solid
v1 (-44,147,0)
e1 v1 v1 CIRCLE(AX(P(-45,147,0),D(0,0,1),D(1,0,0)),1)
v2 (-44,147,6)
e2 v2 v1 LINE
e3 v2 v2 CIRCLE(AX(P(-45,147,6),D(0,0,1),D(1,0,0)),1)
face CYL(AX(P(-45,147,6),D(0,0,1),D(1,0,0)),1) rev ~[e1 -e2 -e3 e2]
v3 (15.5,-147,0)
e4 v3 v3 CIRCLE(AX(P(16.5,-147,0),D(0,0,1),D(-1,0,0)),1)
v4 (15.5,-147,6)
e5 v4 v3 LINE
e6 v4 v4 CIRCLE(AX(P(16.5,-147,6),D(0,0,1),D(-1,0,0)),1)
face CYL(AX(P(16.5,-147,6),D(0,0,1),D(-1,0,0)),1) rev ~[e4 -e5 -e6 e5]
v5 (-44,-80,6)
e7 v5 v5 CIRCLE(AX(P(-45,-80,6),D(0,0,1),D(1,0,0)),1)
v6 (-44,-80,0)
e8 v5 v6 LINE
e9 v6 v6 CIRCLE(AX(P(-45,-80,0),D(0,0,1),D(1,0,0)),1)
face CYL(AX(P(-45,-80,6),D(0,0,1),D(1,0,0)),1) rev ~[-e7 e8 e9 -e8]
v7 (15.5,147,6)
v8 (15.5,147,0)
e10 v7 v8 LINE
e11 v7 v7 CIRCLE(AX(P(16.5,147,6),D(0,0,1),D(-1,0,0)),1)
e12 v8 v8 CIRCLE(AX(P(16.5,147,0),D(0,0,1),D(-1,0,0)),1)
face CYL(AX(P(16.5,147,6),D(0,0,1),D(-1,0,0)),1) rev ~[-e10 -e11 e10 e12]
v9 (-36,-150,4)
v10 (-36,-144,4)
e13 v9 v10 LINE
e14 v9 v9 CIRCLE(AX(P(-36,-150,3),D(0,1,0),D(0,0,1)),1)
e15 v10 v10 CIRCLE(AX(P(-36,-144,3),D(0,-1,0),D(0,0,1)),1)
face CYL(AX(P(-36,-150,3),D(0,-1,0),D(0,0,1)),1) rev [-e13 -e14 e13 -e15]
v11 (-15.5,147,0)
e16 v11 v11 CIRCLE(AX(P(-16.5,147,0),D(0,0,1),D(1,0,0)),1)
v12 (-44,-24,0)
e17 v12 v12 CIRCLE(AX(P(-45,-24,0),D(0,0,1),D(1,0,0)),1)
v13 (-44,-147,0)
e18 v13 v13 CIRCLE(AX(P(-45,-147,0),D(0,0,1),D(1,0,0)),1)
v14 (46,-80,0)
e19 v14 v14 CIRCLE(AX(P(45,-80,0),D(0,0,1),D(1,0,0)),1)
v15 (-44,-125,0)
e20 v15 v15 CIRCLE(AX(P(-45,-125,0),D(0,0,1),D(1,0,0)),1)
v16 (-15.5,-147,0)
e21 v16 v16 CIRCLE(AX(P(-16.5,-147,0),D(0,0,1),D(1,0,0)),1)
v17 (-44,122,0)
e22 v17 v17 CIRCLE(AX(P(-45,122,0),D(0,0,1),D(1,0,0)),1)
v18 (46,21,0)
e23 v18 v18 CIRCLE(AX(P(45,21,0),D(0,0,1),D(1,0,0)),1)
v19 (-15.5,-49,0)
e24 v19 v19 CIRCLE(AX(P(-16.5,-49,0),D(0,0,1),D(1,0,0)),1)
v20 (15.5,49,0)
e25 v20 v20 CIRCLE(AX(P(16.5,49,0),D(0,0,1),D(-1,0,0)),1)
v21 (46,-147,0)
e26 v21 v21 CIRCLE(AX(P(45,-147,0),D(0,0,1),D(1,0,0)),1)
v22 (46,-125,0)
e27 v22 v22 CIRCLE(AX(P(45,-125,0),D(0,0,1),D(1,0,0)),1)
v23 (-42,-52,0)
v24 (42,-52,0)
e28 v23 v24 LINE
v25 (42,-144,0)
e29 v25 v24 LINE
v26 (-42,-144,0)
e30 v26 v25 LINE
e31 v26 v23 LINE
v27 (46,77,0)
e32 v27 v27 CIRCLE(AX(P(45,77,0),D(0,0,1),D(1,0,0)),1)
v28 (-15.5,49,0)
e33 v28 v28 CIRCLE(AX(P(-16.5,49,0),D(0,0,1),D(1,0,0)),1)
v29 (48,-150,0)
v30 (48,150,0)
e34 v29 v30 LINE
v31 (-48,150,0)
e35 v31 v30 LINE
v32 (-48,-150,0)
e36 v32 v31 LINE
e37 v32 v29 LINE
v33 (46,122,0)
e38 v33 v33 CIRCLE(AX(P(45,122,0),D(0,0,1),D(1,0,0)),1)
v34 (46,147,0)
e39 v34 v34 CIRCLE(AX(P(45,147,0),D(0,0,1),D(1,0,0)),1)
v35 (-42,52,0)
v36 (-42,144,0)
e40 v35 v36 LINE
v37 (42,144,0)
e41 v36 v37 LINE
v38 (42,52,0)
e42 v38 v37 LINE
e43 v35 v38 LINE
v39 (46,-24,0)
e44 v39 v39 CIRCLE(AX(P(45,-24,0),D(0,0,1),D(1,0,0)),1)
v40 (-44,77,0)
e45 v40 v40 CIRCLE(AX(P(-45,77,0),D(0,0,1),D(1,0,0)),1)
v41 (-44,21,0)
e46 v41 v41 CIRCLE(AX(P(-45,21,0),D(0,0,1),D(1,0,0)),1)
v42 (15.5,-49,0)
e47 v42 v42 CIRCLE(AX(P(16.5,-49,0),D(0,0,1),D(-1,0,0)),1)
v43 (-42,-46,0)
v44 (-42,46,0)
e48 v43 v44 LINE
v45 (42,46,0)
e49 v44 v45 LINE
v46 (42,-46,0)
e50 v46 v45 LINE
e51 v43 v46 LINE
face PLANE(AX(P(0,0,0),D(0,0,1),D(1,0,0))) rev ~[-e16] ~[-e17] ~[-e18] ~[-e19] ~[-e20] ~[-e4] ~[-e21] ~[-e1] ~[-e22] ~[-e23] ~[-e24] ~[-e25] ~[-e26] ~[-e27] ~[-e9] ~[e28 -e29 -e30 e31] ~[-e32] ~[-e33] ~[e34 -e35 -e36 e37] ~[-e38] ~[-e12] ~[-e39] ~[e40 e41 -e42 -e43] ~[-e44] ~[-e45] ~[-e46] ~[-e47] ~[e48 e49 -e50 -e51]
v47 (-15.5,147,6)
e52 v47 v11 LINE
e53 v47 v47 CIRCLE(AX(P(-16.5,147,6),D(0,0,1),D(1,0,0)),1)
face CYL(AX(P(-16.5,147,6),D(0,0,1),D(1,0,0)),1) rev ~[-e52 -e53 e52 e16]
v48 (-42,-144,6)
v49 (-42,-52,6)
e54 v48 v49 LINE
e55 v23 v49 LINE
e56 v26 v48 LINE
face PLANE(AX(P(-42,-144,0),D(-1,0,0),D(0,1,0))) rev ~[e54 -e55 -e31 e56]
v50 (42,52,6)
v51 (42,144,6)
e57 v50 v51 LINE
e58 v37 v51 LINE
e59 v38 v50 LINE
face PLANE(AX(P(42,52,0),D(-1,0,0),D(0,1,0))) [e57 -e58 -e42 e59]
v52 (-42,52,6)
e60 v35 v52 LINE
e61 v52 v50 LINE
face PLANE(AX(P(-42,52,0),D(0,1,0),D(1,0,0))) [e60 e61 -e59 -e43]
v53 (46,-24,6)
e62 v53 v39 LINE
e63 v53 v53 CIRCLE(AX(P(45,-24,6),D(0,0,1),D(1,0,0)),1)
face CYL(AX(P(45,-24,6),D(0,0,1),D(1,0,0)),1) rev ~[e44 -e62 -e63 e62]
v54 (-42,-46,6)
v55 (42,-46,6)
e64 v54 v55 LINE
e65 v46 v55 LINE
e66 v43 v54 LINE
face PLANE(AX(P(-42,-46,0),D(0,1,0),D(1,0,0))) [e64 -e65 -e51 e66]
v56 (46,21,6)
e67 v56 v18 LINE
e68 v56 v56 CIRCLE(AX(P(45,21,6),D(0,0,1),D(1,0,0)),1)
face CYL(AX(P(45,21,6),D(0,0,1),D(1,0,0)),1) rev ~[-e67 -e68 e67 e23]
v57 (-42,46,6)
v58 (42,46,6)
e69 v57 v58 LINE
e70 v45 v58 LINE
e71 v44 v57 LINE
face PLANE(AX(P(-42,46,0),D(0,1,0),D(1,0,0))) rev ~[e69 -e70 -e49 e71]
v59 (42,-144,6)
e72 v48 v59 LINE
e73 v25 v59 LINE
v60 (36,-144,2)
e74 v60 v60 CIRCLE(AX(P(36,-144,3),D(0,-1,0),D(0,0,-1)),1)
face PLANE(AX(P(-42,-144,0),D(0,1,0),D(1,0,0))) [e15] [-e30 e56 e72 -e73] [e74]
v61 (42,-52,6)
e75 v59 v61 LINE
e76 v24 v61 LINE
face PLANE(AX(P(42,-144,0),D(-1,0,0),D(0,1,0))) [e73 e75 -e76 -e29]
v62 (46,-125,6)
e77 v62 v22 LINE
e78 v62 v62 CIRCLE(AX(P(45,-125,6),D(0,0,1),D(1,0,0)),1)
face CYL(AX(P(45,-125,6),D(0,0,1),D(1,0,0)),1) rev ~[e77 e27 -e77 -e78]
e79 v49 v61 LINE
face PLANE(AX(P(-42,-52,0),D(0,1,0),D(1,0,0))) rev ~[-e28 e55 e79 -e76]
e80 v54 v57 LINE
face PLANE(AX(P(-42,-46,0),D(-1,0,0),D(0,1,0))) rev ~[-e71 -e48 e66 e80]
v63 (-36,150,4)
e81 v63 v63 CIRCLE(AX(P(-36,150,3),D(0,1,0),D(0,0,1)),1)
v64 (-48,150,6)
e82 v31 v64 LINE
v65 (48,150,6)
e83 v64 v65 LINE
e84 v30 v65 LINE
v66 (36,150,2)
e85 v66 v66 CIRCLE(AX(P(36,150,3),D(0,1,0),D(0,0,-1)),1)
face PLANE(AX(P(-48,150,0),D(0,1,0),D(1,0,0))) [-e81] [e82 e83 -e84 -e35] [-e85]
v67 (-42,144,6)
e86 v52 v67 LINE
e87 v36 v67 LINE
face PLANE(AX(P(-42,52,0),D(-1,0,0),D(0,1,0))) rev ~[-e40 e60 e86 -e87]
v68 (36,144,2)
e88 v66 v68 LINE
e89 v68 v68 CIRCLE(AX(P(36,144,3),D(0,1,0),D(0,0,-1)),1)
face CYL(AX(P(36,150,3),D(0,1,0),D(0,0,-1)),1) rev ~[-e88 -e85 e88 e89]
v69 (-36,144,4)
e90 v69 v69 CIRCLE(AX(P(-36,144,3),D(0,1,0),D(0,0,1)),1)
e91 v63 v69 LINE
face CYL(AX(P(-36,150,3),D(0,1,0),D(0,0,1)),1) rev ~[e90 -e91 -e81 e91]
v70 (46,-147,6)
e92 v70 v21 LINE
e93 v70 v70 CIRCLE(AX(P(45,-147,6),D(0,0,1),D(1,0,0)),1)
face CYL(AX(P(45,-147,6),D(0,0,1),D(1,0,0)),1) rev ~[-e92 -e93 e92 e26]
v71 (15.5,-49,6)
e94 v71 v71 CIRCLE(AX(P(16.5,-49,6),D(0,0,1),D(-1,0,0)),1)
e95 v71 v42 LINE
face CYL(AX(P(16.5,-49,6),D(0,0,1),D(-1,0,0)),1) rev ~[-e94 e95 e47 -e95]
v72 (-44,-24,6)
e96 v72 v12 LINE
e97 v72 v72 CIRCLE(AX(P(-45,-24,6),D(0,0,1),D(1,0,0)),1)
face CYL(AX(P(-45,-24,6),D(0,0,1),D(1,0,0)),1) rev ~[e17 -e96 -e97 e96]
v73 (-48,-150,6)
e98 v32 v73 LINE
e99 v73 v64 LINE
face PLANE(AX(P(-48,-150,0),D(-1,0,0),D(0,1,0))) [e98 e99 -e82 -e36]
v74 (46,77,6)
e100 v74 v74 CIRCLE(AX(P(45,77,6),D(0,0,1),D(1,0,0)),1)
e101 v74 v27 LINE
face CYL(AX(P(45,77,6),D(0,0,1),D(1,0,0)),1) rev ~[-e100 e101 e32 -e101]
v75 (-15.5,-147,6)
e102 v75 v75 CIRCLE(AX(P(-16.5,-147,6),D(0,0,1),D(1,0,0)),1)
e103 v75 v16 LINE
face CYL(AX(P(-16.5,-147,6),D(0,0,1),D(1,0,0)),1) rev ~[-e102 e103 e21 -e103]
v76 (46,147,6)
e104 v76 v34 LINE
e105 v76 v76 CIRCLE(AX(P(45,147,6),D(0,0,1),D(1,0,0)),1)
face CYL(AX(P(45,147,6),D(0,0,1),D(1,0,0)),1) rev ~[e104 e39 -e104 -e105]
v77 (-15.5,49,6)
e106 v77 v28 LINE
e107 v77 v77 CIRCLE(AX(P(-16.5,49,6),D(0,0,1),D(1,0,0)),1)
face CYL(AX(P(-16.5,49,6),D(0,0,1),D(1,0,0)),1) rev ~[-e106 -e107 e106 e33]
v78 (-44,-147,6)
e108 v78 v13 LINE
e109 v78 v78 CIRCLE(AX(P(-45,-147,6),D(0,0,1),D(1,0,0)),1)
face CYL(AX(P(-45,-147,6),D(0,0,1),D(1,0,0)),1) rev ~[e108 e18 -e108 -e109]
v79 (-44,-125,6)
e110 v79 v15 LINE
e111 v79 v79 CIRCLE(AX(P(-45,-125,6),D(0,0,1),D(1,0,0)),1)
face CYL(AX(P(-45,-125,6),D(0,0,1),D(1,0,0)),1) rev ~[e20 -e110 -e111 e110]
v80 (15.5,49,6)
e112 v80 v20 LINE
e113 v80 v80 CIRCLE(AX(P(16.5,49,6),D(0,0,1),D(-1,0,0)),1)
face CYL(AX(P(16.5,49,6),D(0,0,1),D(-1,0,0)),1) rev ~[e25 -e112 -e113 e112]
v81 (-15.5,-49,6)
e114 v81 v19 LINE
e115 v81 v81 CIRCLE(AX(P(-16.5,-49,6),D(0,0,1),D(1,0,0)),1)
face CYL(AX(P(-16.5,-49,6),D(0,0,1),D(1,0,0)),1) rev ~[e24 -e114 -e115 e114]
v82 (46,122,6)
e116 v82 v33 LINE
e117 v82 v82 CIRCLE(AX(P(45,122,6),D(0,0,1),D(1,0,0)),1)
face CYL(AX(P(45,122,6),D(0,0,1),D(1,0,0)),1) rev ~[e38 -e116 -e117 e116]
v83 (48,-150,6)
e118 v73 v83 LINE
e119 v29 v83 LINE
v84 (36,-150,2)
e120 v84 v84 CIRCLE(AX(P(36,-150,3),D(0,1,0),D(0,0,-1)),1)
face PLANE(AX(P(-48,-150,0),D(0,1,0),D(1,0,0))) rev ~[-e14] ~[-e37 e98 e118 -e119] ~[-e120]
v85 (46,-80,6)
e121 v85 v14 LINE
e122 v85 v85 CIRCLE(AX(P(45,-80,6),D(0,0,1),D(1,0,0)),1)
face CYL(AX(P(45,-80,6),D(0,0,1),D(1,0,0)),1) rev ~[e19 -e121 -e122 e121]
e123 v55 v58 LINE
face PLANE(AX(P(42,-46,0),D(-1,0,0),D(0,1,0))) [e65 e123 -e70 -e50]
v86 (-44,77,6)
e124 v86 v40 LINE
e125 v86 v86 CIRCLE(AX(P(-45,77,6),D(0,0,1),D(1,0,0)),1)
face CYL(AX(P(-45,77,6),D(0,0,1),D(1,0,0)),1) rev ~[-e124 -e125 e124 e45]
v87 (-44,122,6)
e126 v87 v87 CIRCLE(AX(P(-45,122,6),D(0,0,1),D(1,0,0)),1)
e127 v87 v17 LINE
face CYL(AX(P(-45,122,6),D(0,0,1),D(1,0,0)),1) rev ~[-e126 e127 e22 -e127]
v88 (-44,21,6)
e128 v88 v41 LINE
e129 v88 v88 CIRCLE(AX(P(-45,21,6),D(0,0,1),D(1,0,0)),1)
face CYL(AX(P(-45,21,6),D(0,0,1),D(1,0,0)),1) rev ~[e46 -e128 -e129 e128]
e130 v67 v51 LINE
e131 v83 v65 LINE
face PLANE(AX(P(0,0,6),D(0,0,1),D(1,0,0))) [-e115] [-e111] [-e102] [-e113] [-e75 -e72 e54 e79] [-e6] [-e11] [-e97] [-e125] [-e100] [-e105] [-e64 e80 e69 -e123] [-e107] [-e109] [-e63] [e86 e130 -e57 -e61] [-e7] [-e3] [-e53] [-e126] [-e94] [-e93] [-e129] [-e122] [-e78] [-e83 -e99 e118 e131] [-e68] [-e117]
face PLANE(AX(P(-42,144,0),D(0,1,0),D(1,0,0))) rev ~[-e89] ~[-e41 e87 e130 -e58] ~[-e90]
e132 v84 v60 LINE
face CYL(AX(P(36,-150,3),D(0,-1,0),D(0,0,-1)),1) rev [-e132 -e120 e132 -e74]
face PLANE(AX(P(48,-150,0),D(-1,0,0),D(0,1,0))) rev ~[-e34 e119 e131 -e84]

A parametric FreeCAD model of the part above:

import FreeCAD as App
import Part
import Sketcher

doc = App.newDocument("Part")
params = doc.addObject("Spreadsheet::Sheet", "Params")
for row, (alias, value) in enumerate([
    ("sketch1_width", "96 mm"),
    ("sketch1_width2", "84 mm"),
    ("sketch1_height", "300 mm"),
    ("sketch1_height2", "92 mm"),
    ("pad1_length", "6 mm"),
    ("sketch2_diameter", "2 mm"),
    ("pocket1_length", "6 mm"),
    ("sketch3_diameter", "2 mm"),
    ("pocket2_length", "10 mm"),
    ("sketch4_diameter", "2 mm"),
    ("pocket3_length", "10 mm"),
], start=1):
    params.set(f"A{row}", alias)
    params.set(f"B{row}", "=" + value)
    params.setAlias(f"B{row}", alias)

body = doc.addObject("PartDesign::Body", "Body")

# Sketch on XY plane
sketch1 = body.newObject("Sketcher::SketchObject", "Sketch")
sketch1.AttachmentSupport = (doc.getObject("XY_Plane"), [""])
sketch1.MapMode = "FlatFace"
sketch1.addGeometry([
    Part.LineSegment(App.Vector(-48, 150, 0), App.Vector(-48, -150, 0)),  # 0
    Part.LineSegment(App.Vector(-48, -150, 0), App.Vector(48, -150, 0)),  # 1
    Part.LineSegment(App.Vector(48, -150, 0), App.Vector(48, 150, 0)),  # 2
    Part.LineSegment(App.Vector(48, 150, 0), App.Vector(-48, 150, 0)),  # 3
    Part.LineSegment(App.Vector(42, -144, 0), App.Vector(-42, -144, 0)),  # 4
    Part.LineSegment(App.Vector(-42, -144, 0), App.Vector(-42, -52, 0)),  # 5
    Part.LineSegment(App.Vector(-42, -52, 0), App.Vector(42, -52, 0)),  # 6
    Part.LineSegment(App.Vector(42, -52, 0), App.Vector(42, -144, 0)),  # 7
    Part.LineSegment(App.Vector(42, -46, 0), App.Vector(-42, -46, 0)),  # 8
    Part.LineSegment(App.Vector(-42, -46, 0), App.Vector(-42, 46, 0)),  # 9
    Part.LineSegment(App.Vector(-42, 46, 0), App.Vector(42, 46, 0)),  # 10
    Part.LineSegment(App.Vector(42, 46, 0), App.Vector(42, -46, 0)),  # 11
    Part.LineSegment(App.Vector(42, 52, 0), App.Vector(-42, 52, 0)),  # 12
    Part.LineSegment(App.Vector(-42, 52, 0), App.Vector(-42, 144, 0)),  # 13
    Part.LineSegment(App.Vector(-42, 144, 0), App.Vector(42, 144, 0)),  # 14
    Part.LineSegment(App.Vector(42, 144, 0), App.Vector(42, 52, 0)),  # 15
], False)
sketch1.addConstraint([
    Sketcher.Constraint("Coincident", 0, 2, 1, 1),
    Sketcher.Constraint("Coincident", 1, 2, 2, 1),
    Sketcher.Constraint("Coincident", 2, 2, 3, 1),
    Sketcher.Constraint("Coincident", 3, 2, 0, 1),
    Sketcher.Constraint("Coincident", 4, 2, 5, 1),
    Sketcher.Constraint("Coincident", 5, 2, 6, 1),
    Sketcher.Constraint("Coincident", 6, 2, 7, 1),
    Sketcher.Constraint("Coincident", 7, 2, 4, 1),
    Sketcher.Constraint("Coincident", 8, 2, 9, 1),
    Sketcher.Constraint("Coincident", 9, 2, 10, 1),
    Sketcher.Constraint("Coincident", 10, 2, 11, 1),
    Sketcher.Constraint("Coincident", 11, 2, 8, 1),
    Sketcher.Constraint("Coincident", 12, 2, 13, 1),
    Sketcher.Constraint("Coincident", 13, 2, 14, 1),
    Sketcher.Constraint("Coincident", 14, 2, 15, 1),
    Sketcher.Constraint("Coincident", 15, 2, 12, 1),
    Sketcher.Constraint("Vertical", 0),
    Sketcher.Constraint("Horizontal", 1),
    Sketcher.Constraint("Vertical", 2),
    Sketcher.Constraint("Horizontal", 3),
    Sketcher.Constraint("Horizontal", 4),
    Sketcher.Constraint("Vertical", 5),
    Sketcher.Constraint("Horizontal", 6),
    Sketcher.Constraint("Vertical", 7),
    Sketcher.Constraint("Horizontal", 8),
    Sketcher.Constraint("Vertical", 9),
    Sketcher.Constraint("Horizontal", 10),
    Sketcher.Constraint("Vertical", 11),
    Sketcher.Constraint("Horizontal", 12),
    Sketcher.Constraint("Vertical", 13),
    Sketcher.Constraint("Horizontal", 14),
    Sketcher.Constraint("Vertical", 15),
    Sketcher.Constraint("Symmetric", 0, 2, 2, 2, -1, 1),
    Sketcher.Constraint("Symmetric", 8, 2, 10, 2, -1, 1),
    Sketcher.Constraint("Symmetric", 6, 2, 12, 2, -1, 1),
    Sketcher.Constraint("Symmetric", 4, 2, 14, 2, -1, 1),
    Sketcher.Constraint("Vertical", 5, 2, 8, 2),
    Sketcher.Constraint("Vertical", 7, 2, 10, 2),
    Sketcher.Constraint("Equal", 7, 9),
    Sketcher.Constraint("DistanceX", 1, 1, 1, 2, 96.0),
    Sketcher.Constraint("DistanceX", 4, 2, 4, 1, 84.0),
    Sketcher.Constraint("DistanceY", 0, 2, 0, 1, 300.0),
    Sketcher.Constraint("DistanceY", 5, 1, 5, 2, 92.0),
    Sketcher.Constraint("DistanceY", 4, 2, -1, 1, 144.0),
])
sketch1.setExpression("Constraints[39]", "Params.sketch1_width")
sketch1.setExpression("Constraints[40]", "Params.sketch1_width2")
sketch1.setExpression("Constraints[41]", "Params.sketch1_height")
sketch1.setExpression("Constraints[42]", "Params.sketch1_height2")
pad1 = body.newObject("PartDesign::Pad", "Pad")
pad1.Profile = sketch1
pad1.setExpression("Length", "Params.pad1_length")

# Sketch on XY plane
sketch2 = body.newObject("Sketcher::SketchObject", "Sketch001")
sketch2.AttachmentSupport = (doc.getObject("XY_Plane"), [""])
sketch2.MapMode = "FlatFace"
sketch2.AttachmentOffset = App.Placement(App.Vector(0, 0, 6), App.Rotation())
sketch2.addGeometry([
    Part.Circle(App.Vector(-45, 147, 0), App.Vector(0, 0, 1), 1),
    Part.Circle(App.Vector(45, 147, 0), App.Vector(0, 0, 1), 1),
    Part.Circle(App.Vector(-45, -147, 0), App.Vector(0, 0, 1), 1),
    Part.Circle(App.Vector(45, -147, 0), App.Vector(0, 0, 1), 1),
], False)
sketch2.addConstraint([
    Sketcher.Constraint("Equal", 0, 1),
    Sketcher.Constraint("Equal", 1, 2),
    Sketcher.Constraint("Equal", 2, 3),
    Sketcher.Constraint("Symmetric", 1, 3, 2, 3, -1, 1),
    Sketcher.Constraint("Symmetric", 0, 3, 3, 3, -1, 1),
    Sketcher.Constraint("Symmetric", 0, 3, 1, 3, -2),
    Sketcher.Constraint("Diameter", 0, 2.0),
    Sketcher.Constraint("DistanceX", 0, 3, -1, 1, 45.0),
    Sketcher.Constraint("DistanceY", -1, 1, 0, 3, 147.0),
])
sketch2.setExpression("Constraints[6]", "Params.sketch2_diameter")
pocket1 = body.newObject("PartDesign::Pocket", "Pocket")
pocket1.Profile = sketch2
pocket1.setExpression("Length", "Params.pocket1_length")

# Sketch on XZ plane
sketch3 = body.newObject("Sketcher::SketchObject", "Sketch002")
sketch3.AttachmentSupport = (doc.getObject("XZ_Plane"), [""])
sketch3.MapMode = "FlatFace"
sketch3.AttachmentOffset = App.Placement(App.Vector(0, 0, -150), App.Rotation())
sketch3.addGeometry([
    Part.Circle(App.Vector(-36, 3, 0), App.Vector(0, 0, 1), 1),
    Part.Circle(App.Vector(36, 3, 0), App.Vector(0, 0, 1), 1),
], False)
sketch3.addConstraint([
    Sketcher.Constraint("Equal", 0, 1),
    Sketcher.Constraint("Symmetric", 0, 3, 1, 3, -2),
    Sketcher.Constraint("Diameter", 0, 2.0),
    Sketcher.Constraint("DistanceX", 0, 3, -1, 1, 36.0),
    Sketcher.Constraint("DistanceY", -1, 1, 0, 3, 3.0),
])
sketch3.setExpression("Constraints[2]", "Params.sketch3_diameter")
pocket2 = body.newObject("PartDesign::Pocket", "Pocket001")
pocket2.Profile = sketch3
pocket2.setExpression("Length", "Params.pocket2_length")
pocket2.Reversed = True
doc.recompute()

mirrored = body.newObject("PartDesign::Mirrored", "Mirrored")
mirrored.Originals = [pocket2]
mirrored.MirrorPlane = (doc.getObject("XZ_Plane"), [""])
body.Tip = mirrored

# Sketch on XY plane
sketch4 = body.newObject("Sketcher::SketchObject", "Sketch003")
sketch4.AttachmentSupport = (doc.getObject("XY_Plane"), [""])
sketch4.MapMode = "FlatFace"
sketch4.AttachmentOffset = App.Placement(App.Vector(0, 0, 6), App.Rotation())
sketch4.addGeometry([
    Part.Circle(App.Vector(-45, 122, 0), App.Vector(0, 0, 1), 1),  # 0
    Part.Circle(App.Vector(-16.5, 147, 0), App.Vector(0, 0, 1), 1),  # 1
    Part.Circle(App.Vector(16.5, 147, 0), App.Vector(0, 0, 1), 1),  # 2
    Part.Circle(App.Vector(-16.5, 49, 0), App.Vector(0, 0, 1), 1),  # 3
    Part.Circle(App.Vector(16.5, 49, 0), App.Vector(0, 0, 1), 1),  # 4
    Part.Circle(App.Vector(-16.5, -49, 0), App.Vector(0, 0, 1), 1),  # 5
    Part.Circle(App.Vector(16.5, -49, 0), App.Vector(0, 0, 1), 1),  # 6
    Part.Circle(App.Vector(-16.5, -147, 0), App.Vector(0, 0, 1), 1),  # 7
    Part.Circle(App.Vector(16.5, -147, 0), App.Vector(0, 0, 1), 1),  # 8
    Part.Circle(App.Vector(-45, 21, 0), App.Vector(0, 0, 1), 1),  # 9
    Part.Circle(App.Vector(45, 122, 0), App.Vector(0, 0, 1), 1),  # 10
    Part.Circle(App.Vector(45, 77, 0), App.Vector(0, 0, 1), 1),  # 11
    Part.Circle(App.Vector(-45, 77, 0), App.Vector(0, 0, 1), 1),  # 12
    Part.Circle(App.Vector(45, 21, 0), App.Vector(0, 0, 1), 1),  # 13
    Part.Circle(App.Vector(45, -24, 0), App.Vector(0, 0, 1), 1),  # 14
    Part.Circle(App.Vector(-45, -24, 0), App.Vector(0, 0, 1), 1),  # 15
    Part.Circle(App.Vector(-45, -80, 0), App.Vector(0, 0, 1), 1),  # 16
    Part.Circle(App.Vector(45, -80, 0), App.Vector(0, 0, 1), 1),  # 17
    Part.Circle(App.Vector(45, -125, 0), App.Vector(0, 0, 1), 1),  # 18
    Part.Circle(App.Vector(-45, -125, 0), App.Vector(0, 0, 1), 1),  # 19
], False)
sketch4.addConstraint([
    Sketcher.Constraint("Equal", 0, 1),
    Sketcher.Constraint("Equal", 1, 2),
    Sketcher.Constraint("Equal", 2, 3),
    Sketcher.Constraint("Equal", 3, 4),
    Sketcher.Constraint("Equal", 4, 5),
    Sketcher.Constraint("Equal", 5, 6),
    Sketcher.Constraint("Equal", 6, 7),
    Sketcher.Constraint("Equal", 7, 8),
    Sketcher.Constraint("Equal", 8, 9),
    Sketcher.Constraint("Equal", 9, 10),
    Sketcher.Constraint("Equal", 10, 11),
    Sketcher.Constraint("Equal", 11, 12),
    Sketcher.Constraint("Equal", 12, 13),
    Sketcher.Constraint("Equal", 13, 14),
    Sketcher.Constraint("Equal", 14, 15),
    Sketcher.Constraint("Equal", 15, 16),
    Sketcher.Constraint("Equal", 16, 17),
    Sketcher.Constraint("Equal", 17, 18),
    Sketcher.Constraint("Equal", 18, 19),
    Sketcher.Constraint("Symmetric", 4, 3, 5, 3, -1, 1),
    Sketcher.Constraint("Symmetric", 3, 3, 6, 3, -1, 1),
    Sketcher.Constraint("Symmetric", 2, 3, 7, 3, -1, 1),
    Sketcher.Constraint("Symmetric", 1, 3, 8, 3, -1, 1),
    Sketcher.Constraint("Symmetric", 1, 3, 2, 3, -2),
    Sketcher.Constraint("Symmetric", 3, 3, 4, 3, -2),
    Sketcher.Constraint("Symmetric", 0, 3, 10, 3, -2),
    Sketcher.Constraint("Symmetric", 11, 3, 12, 3, -2),
    Sketcher.Constraint("Symmetric", 9, 3, 13, 3, -2),
    Sketcher.Constraint("Symmetric", 14, 3, 15, 3, -2),
    Sketcher.Constraint("Symmetric", 16, 3, 17, 3, -2),
    Sketcher.Constraint("Symmetric", 18, 3, 19, 3, -2),
    Sketcher.Constraint("Vertical", 1, 3, 3, 3),
    Sketcher.Constraint("Vertical", 0, 3, 9, 3),
    Sketcher.Constraint("Vertical", 10, 3, 11, 3),
    Sketcher.Constraint("Vertical", 13, 3, 14, 3),
    Sketcher.Constraint("Vertical", 15, 3, 16, 3),
    Sketcher.Constraint("Vertical", 17, 3, 18, 3),
    Sketcher.Constraint("Diameter", 0, 2.0),
    Sketcher.Constraint("DistanceX", 0, 3, -1, 1, 45.0),
    Sketcher.Constraint("DistanceY", -1, 1, 0, 3, 122.0),
    Sketcher.Constraint("DistanceY", -1, 1, 1, 3, 147.0),
    Sketcher.Constraint("DistanceY", -1, 1, 3, 3, 49.0),
    Sketcher.Constraint("DistanceY", -1, 1, 9, 3, 21.0),
    Sketcher.Constraint("DistanceY", -1, 1, 11, 3, 77.0),
    Sketcher.Constraint("DistanceY", 14, 3, -1, 1, 24.0),
    Sketcher.Constraint("DistanceY", 16, 3, -1, 1, 80.0),
    Sketcher.Constraint("DistanceY", 18, 3, -1, 1, 125.0),
    Sketcher.Constraint("DistanceX", 1, 3, 2, 3, 33.0),
])
sketch4.setExpression("Constraints[37]", "Params.sketch4_diameter")
pocket3 = body.newObject("PartDesign::Pocket", "Pocket002")
pocket3.Profile = sketch4
pocket3.setExpression("Length", "Params.pocket3_length")

doc.recompute()
